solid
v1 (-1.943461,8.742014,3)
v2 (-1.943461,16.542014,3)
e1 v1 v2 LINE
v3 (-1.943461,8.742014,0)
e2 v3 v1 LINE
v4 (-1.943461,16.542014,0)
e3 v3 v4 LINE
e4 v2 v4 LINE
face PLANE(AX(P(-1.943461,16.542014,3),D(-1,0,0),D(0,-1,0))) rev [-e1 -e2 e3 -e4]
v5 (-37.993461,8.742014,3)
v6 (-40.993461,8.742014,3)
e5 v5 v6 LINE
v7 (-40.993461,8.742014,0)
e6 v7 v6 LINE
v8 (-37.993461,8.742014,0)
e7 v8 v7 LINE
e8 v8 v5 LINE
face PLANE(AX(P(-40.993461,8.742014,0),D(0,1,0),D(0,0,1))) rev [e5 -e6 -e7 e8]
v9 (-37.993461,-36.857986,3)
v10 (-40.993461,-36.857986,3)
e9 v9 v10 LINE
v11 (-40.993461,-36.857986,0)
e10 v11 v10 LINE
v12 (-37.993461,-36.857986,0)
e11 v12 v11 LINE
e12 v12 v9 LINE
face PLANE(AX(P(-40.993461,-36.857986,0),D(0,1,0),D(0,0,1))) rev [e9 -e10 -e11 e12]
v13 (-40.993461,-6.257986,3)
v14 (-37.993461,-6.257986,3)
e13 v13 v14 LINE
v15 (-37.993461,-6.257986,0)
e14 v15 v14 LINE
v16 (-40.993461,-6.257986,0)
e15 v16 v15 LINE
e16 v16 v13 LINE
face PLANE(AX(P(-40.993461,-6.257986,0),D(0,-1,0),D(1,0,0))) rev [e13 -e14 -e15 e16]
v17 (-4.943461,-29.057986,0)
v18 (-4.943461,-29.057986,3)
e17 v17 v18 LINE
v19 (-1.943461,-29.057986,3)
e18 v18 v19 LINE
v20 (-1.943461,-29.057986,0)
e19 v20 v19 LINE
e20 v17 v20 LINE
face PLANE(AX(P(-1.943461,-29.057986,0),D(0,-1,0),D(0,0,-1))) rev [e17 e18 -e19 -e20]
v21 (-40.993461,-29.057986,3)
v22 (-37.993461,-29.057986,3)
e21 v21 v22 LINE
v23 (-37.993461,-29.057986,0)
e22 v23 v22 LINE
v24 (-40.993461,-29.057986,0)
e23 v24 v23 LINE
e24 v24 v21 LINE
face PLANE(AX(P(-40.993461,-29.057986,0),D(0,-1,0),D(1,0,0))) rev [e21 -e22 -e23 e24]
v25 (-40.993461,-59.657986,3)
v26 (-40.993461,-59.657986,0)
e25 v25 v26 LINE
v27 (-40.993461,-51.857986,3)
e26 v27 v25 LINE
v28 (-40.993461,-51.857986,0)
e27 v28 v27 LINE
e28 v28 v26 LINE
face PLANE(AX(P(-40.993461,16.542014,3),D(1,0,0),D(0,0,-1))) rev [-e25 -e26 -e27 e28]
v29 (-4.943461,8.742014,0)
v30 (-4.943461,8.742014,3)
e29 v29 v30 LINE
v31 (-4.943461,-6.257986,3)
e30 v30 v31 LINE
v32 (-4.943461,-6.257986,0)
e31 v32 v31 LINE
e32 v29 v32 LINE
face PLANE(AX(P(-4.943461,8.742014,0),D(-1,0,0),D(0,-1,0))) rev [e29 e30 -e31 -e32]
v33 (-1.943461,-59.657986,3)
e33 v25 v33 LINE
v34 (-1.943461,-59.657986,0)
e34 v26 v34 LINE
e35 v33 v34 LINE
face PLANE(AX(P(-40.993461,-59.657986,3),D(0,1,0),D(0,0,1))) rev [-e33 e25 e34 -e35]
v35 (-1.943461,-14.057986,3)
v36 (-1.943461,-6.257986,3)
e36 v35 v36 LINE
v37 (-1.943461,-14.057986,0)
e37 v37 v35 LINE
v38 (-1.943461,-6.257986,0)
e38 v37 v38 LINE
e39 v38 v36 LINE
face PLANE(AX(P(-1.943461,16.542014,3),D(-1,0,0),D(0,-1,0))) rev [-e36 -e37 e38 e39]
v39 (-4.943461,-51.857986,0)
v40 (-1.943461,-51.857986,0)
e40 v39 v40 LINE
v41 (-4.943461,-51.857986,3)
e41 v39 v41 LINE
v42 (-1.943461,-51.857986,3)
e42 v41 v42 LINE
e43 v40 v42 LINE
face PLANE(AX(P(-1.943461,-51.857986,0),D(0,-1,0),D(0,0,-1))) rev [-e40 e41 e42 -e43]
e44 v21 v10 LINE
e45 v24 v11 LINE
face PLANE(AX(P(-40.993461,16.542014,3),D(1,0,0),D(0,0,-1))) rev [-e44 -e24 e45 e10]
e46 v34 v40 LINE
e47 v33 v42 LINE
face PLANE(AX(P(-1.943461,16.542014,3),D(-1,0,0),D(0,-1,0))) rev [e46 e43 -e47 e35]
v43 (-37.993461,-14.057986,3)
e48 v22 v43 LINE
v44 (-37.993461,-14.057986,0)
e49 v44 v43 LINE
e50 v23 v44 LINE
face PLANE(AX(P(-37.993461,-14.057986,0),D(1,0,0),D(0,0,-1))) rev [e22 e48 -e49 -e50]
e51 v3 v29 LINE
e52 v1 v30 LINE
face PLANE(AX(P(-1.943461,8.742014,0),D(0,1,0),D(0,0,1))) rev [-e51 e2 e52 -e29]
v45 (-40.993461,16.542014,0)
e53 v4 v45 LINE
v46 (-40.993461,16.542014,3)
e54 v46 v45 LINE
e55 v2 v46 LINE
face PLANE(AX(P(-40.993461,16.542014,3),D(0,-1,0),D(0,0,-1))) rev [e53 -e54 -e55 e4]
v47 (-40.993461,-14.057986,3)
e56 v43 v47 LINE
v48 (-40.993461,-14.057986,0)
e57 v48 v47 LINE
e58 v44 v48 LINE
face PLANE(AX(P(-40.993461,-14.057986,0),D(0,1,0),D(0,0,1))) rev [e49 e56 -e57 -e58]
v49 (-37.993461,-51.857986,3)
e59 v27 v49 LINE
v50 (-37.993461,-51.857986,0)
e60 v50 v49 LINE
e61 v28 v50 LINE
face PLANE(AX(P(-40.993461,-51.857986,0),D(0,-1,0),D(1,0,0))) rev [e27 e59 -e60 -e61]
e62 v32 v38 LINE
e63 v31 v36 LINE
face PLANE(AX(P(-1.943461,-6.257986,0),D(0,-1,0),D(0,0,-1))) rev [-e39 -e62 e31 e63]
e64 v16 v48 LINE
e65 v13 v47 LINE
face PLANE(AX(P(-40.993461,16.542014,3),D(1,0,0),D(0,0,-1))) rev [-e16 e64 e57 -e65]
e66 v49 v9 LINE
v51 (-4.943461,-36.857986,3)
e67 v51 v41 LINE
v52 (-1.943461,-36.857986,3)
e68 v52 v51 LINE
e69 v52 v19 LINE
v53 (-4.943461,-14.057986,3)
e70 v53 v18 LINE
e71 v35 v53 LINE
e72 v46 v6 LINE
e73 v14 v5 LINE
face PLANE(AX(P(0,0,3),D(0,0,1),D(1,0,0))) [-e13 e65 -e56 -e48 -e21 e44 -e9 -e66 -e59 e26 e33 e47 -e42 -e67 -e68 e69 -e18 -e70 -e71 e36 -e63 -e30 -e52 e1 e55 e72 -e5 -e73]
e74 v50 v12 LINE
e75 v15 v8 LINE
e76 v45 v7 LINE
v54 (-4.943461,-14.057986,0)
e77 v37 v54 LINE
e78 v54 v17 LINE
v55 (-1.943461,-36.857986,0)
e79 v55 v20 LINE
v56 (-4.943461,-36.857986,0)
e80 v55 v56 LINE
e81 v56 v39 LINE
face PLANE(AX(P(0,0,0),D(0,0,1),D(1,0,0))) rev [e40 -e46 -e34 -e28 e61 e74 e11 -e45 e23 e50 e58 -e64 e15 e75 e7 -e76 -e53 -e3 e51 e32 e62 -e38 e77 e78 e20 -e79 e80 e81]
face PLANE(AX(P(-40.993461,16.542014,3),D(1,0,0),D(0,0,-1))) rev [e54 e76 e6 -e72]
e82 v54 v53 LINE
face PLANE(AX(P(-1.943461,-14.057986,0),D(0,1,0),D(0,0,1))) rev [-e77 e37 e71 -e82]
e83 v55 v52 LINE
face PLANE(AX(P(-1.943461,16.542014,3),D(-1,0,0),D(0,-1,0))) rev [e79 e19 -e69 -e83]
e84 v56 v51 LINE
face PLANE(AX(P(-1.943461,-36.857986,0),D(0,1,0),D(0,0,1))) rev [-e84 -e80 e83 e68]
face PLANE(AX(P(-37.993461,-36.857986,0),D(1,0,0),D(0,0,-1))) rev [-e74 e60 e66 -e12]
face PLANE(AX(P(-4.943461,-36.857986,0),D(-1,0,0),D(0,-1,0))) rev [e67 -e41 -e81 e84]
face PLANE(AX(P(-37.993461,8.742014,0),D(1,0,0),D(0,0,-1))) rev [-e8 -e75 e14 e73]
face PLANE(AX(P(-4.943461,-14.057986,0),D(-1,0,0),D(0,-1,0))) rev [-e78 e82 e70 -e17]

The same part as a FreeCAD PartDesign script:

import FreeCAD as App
import Part
import Sketcher

doc = App.newDocument("Part")
body = doc.addObject("PartDesign::Body", "Body")

sketch1 = body.newObject("Sketcher::SketchObject", "Sketch")
sketch1.AttachmentSupport = (doc.getObject("XY_Plane"), [""])
sketch1.MapMode = "FlatFace"
sketch1.addGeometry([
    Part.LineSegment(App.Vector(-41, 17, 0), App.Vector(-41, -60, 0)),
    Part.LineSegment(App.Vector(-41, -60, 0), App.Vector(-2, -60, 0)),
    Part.LineSegment(App.Vector(-2, -60, 0), App.Vector(-2, 17, 0)),
    Part.LineSegment(App.Vector(-2, 17, 0), App.Vector(-41, 17, 0)),
], False)
sketch1.addConstraint([
    Sketcher.Constraint("Coincident", 0, 2, 1, 1),
    Sketcher.Constraint("Coincident", 1, 2, 2, 1),
    Sketcher.Constraint("Coincident", 2, 2, 3, 1),
    Sketcher.Constraint("Coincident", 3, 2, 0, 1),
    Sketcher.Constraint("Vertical", 0),
    Sketcher.Constraint("Horizontal", 1),
    Sketcher.Constraint("Vertical", 2),
    Sketcher.Constraint("Horizontal", 3),
    Sketcher.Constraint("DistanceY", 0, 2, 0, 1, 76.2),
    Sketcher.Constraint("DistanceX", 1, 1, 1, 2, 39.05),
    Sketcher.Constraint("DistanceX", 0, 2, -1, 1, 40.993461),
    Sketcher.Constraint("DistanceY", 0, 2, -1, 1, 59.657986),
])
pad1 = body.newObject("PartDesign::Pad", "Pad")
pad1.Profile = sketch1
pad1.Length = 3

sketch2 = body.newObject("Sketcher::SketchObject", "Sketch001")
sketch2.AttachmentSupport = (doc.getObject("XY_Plane"), [""])
sketch2.MapMode = "FlatFace"
sketch2.AttachmentOffset = App.Placement(App.Vector(0, 0, 3), App.Rotation())
sketch2.addGeometry([
    Part.LineSegment(App.Vector(-41, 8.7, 0), App.Vector(-41, -6.3, 0)),
    Part.LineSegment(App.Vector(-41, -6.3, 0), App.Vector(-38, -6.3, 0)),
    Part.LineSegment(App.Vector(-38, -6.3, 0), App.Vector(-38, 8.7, 0)),
    Part.LineSegment(App.Vector(-38, 8.7, 0), App.Vector(-41, 8.7, 0)),
    Part.LineSegment(App.Vector(-4.9, 8.7, 0), App.Vector(-4.9, -6.3, 0)),
    Part.LineSegment(App.Vector(-4.9, -6.3, 0), App.Vector(-1.9, -6.3, 0)),
    Part.LineSegment(App.Vector(-1.9, -6.3, 0), App.Vector(-1.9, 8.7, 0)),
    Part.LineSegment(App.Vector(-1.9, 8.7, 0), App.Vector(-4.9, 8.7, 0)),
], False)
sketch2.addConstraint([
    Sketcher.Constraint("Coincident", 0, 2, 1, 1),
    Sketcher.Constraint("Coincident", 1, 2, 2, 1),
    Sketcher.Constraint("Coincident", 2, 2, 3, 1),
    Sketcher.Constraint("Coincident", 3, 2, 0, 1),
    Sketcher.Constraint("Coincident", 4, 2, 5, 1),
    Sketcher.Constraint("Coincident", 5, 2, 6, 1),
    Sketcher.Constraint("Coincident", 6, 2, 7, 1),
    Sketcher.Constraint("Coincident", 7, 2, 4, 1),
    Sketcher.Constraint("Vertical", 0),
    Sketcher.Constraint("Horizontal", 1),
    Sketcher.Constraint("Vertical", 2),
    Sketcher.Constraint("Horizontal", 3),
    Sketcher.Constraint("Vertical", 4),
    Sketcher.Constraint("Horizontal", 5),
    Sketcher.Constraint("Vertical", 6),
    Sketcher.Constraint("Horizontal", 7),
    Sketcher.Constraint("Horizontal", 1, 2, 4, 2),
    Sketcher.Constraint("Horizontal", 3, 2, 6, 2),
    Sketcher.Constraint("Equal", 3, 5),
    Sketcher.Constraint("DistanceX", 1, 1, 1, 2, 3.0),
    Sketcher.Constraint("DistanceY", 0, 2, 0, 1, 15.0),
    Sketcher.Constraint("DistanceX", 1, 2, 4, 2, 33.05),
    Sketcher.Constraint("DistanceX", 0, 2, -1, 1, 40.993461),
    Sketcher.Constraint("DistanceY", 0, 2, -1, 1, 6.257986),
])
pocket1 = body.newObject("PartDesign::Pocket", "Pocket")
pocket1.Profile = sketch2
pocket1.Type = "ThroughAll"
doc.recompute()

linearpattern = body.newObject("PartDesign::LinearPattern", "LinearPattern")
linearpattern.Originals = [pocket1]
linearpattern.Direction = (doc.getObject("Y_Axis"), [""])
linearpattern.Mode = "offset"
linearpattern.Offset = 22.8
linearpattern.Occurrences = 3
linearpattern.Reversed = True
body.Tip = linearpattern

doc.recompute()
